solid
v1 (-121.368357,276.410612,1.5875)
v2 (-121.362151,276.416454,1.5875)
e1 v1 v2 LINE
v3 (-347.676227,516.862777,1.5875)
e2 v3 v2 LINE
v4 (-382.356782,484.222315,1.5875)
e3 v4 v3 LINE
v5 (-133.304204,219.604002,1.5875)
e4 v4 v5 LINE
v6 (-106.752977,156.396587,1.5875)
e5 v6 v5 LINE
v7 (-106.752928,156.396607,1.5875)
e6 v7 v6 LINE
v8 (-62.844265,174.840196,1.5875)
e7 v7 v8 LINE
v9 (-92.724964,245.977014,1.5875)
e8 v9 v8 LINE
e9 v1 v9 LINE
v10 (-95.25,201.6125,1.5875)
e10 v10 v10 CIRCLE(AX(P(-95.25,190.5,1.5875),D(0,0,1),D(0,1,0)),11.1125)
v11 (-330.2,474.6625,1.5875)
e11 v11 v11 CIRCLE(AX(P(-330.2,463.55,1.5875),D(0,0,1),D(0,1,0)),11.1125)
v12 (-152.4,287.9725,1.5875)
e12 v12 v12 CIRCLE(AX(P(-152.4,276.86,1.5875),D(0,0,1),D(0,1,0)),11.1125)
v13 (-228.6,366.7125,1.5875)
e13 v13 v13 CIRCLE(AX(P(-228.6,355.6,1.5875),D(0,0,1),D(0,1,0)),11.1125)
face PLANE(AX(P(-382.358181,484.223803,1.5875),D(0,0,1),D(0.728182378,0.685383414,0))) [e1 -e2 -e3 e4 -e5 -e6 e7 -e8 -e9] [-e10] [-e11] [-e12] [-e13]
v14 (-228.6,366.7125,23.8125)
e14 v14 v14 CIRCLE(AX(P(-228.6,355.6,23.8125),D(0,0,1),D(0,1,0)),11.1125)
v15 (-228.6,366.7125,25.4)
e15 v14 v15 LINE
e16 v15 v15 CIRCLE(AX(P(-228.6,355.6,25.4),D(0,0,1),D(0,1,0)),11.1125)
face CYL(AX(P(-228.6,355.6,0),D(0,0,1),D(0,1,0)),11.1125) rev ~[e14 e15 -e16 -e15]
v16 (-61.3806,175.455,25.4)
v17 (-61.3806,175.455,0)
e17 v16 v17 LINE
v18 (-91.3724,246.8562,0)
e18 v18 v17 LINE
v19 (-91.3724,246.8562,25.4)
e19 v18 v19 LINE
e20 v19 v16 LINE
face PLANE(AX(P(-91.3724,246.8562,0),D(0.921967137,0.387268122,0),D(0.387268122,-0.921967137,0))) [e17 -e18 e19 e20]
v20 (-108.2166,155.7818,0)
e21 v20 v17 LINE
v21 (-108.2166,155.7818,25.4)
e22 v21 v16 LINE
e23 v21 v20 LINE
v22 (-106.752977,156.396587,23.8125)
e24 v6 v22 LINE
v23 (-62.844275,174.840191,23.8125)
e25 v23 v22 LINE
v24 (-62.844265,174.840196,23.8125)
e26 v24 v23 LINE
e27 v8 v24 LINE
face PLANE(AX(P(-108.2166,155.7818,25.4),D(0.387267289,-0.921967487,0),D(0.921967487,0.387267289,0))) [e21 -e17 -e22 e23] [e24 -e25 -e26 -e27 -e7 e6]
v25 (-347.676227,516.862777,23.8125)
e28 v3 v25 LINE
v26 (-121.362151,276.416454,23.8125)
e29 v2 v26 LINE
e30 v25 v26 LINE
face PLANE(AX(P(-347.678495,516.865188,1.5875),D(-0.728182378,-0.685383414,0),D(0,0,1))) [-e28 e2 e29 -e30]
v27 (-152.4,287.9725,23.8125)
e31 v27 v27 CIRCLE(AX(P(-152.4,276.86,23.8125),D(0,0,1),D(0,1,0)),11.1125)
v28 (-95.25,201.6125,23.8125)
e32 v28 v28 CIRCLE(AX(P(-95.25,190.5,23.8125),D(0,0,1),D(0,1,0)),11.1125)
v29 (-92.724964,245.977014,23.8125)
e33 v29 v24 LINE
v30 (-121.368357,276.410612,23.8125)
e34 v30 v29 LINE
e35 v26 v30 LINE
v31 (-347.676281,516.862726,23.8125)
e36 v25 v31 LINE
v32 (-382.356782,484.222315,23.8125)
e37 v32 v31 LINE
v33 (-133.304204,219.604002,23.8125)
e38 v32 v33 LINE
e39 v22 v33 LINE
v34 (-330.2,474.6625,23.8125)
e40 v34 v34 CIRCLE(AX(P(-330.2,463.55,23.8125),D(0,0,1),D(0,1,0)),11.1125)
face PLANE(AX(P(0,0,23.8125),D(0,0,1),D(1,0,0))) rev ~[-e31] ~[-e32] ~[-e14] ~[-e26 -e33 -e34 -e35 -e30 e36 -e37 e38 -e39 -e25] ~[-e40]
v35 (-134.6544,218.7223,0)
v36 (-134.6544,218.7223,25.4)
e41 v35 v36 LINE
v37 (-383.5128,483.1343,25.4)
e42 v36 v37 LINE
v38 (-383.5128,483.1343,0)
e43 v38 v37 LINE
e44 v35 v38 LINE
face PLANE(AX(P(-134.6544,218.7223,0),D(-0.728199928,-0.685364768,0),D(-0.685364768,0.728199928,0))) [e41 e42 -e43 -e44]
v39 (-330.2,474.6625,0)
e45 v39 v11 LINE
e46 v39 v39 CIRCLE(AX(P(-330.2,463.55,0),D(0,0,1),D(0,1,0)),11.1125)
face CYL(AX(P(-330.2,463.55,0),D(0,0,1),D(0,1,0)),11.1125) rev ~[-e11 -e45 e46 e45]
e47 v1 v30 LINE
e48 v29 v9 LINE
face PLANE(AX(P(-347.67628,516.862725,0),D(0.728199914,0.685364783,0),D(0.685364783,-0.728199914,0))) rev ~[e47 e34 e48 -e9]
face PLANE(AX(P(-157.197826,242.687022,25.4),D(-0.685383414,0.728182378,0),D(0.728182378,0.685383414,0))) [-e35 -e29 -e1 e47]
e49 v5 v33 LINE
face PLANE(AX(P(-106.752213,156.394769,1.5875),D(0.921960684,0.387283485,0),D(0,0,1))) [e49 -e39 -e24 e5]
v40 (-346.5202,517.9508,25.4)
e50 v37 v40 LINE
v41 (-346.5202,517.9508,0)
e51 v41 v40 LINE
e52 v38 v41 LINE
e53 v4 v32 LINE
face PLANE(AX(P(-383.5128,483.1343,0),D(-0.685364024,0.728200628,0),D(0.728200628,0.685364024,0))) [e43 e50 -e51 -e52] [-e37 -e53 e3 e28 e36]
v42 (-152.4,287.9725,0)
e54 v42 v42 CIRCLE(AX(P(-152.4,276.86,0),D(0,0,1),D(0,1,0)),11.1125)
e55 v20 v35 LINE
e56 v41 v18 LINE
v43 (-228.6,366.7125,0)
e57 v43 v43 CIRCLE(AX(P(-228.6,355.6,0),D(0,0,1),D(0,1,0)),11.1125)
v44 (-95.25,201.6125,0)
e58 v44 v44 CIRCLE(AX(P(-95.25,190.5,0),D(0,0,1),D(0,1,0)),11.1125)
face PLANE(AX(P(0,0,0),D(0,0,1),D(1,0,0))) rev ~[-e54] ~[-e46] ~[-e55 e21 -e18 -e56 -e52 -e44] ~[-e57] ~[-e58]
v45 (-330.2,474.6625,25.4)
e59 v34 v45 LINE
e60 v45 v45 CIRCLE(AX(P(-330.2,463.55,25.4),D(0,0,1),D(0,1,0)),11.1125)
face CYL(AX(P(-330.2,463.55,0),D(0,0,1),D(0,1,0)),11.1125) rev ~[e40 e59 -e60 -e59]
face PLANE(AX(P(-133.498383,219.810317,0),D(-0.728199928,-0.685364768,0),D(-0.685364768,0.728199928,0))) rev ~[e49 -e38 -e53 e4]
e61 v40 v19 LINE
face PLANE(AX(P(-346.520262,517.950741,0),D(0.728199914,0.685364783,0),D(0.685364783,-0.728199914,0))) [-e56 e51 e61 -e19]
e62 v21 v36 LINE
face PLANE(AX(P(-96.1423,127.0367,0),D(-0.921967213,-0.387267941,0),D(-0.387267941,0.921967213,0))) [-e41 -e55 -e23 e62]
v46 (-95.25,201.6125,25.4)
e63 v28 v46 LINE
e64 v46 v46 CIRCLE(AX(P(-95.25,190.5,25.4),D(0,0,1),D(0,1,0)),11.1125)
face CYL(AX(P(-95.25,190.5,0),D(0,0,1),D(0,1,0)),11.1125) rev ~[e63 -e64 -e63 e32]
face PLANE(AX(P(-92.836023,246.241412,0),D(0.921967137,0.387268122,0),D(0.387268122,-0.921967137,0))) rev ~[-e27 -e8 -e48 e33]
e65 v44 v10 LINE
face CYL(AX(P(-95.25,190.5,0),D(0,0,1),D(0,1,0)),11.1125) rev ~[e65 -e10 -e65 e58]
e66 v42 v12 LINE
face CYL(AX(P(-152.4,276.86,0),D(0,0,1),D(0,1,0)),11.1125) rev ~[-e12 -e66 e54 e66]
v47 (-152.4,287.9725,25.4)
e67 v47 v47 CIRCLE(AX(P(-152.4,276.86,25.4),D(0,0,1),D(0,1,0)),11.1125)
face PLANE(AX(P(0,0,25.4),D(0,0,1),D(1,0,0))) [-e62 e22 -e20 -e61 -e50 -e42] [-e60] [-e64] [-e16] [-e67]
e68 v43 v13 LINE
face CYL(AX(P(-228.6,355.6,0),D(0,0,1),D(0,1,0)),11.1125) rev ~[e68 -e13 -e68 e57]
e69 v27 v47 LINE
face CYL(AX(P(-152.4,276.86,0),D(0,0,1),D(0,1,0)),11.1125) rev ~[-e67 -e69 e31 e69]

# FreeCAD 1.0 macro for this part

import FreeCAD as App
import Part
import Sketcher
Q = App.Units.Quantity


def faces_at(feature, points):
    """Names of the faces that lie closest to the given points."""
    faces = feature.Shape.Faces
    near = lambda p: min(range(len(faces)), key=lambda i: faces[i].distToShape(Part.Vertex(*p))[0])
    return sorted({f"Face{near(p) + 1}" for p in points})


def add_polygon(sketch, points):
    """Adds a closed chain of lines whose ends are joined by coincident constraints."""
    first, n = sketch.GeometryCount, len(points)
    for a, b in zip(points, points[1:] + points[:1]):
        sketch.addGeometry(Part.LineSegment(App.Vector(*a, 0), App.Vector(*b, 0)), False)
    for i in range(n):
        sketch.addConstraint(Sketcher.Constraint("Coincident", first + i, 2, first + (i + 1) % n, 1))

doc = App.newDocument("Part")
body = doc.addObject("PartDesign::Body", "Body")

sketch1 = body.newObject("Sketcher::SketchObject", "Sketch")
sketch1.AttachmentSupport = (doc.getObject("XY_Plane"), [""])
sketch1.MapMode = "FlatFace"
add_polygon(sketch1, [(-91.3724, 246.8562), (-346.5202, 517.9508), (-383.5128, 483.1343), (-134.6544, 218.7223), (-96.1423, 127.0367), (-49.3064, 146.7099)])
sketch1.addConstraint([
    Sketcher.Constraint("Perpendicular", 0, 1),
    Sketcher.Constraint("Perpendicular", 1, 2),
    Sketcher.Constraint("Perpendicular", 3, 4),
    Sketcher.Constraint("Perpendicular", 4, 5),
    Sketcher.Constraint("Equal", 1, 4),
    Sketcher.Constraint("Distance", 1, Q("2 in")),
    Sketcher.Constraint("DistanceY", -1, 1, 5, 2, Q("9.718748 in")),
    Sketcher.Constraint("Distance", 0, Q("14.6567 in")),
    Sketcher.Constraint("DistanceX", 4, 2, -1, 1, Q("1.9412 in")),
    Sketcher.Constraint("DistanceX", 1, 2, 0, 2, Q("1.4564 in")),
    Sketcher.Constraint("DistanceX", 1, 2, 3, 2, Q("11.3138 in")),
    Sketcher.Constraint("DistanceY", 3, 2, 1, 2, Q("14.0196 in")),
])
pad1 = body.newObject("PartDesign::Pad", "Pad")
pad1.Profile = sketch1
pad1.Length = Q("1 in")

sketch2 = body.newObject("Sketcher::SketchObject", "Sketch001")
sketch2.AttachmentSupport = (doc.getObject("XY_Plane"), [""])
sketch2.MapMode = "FlatFace"
sketch2.addGeometry([
    Part.Circle(App.Vector(-95.25, 190.5, 0), App.Vector(0, 0, 1), 11.1125),
    Part.Circle(App.Vector(-152.4, 276.86, 0), App.Vector(0, 0, 1), 11.1125),
    Part.Circle(App.Vector(-228.6, 355.6, 0), App.Vector(0, 0, 1), 11.1125),
    Part.Circle(App.Vector(-330.2, 463.55, 0), App.Vector(0, 0, 1), 11.1125),
], False)
sketch2.addConstraint([
    Sketcher.Constraint("Equal", 0, 1),
    Sketcher.Constraint("Equal", 1, 2),
    Sketcher.Constraint("Equal", 2, 3),
    Sketcher.Constraint("Diameter", 0, Q("0.875 in")),
    Sketcher.Constraint("DistanceX", 1, 3, -1, 1, Q("6 in")),
    Sketcher.Constraint("DistanceX", 2, 3, -1, 1, Q("9 in")),
    Sketcher.Constraint("DistanceY", -1, 1, 2, 3, Q("14 in")),
    Sketcher.Constraint("DistanceX", 3, 3, -1, 1, Q("13 in")),
    Sketcher.Constraint("DistanceY", -1, 1, 0, 3, Q("7.5 in")),
    Sketcher.Constraint("DistanceY", -1, 1, 1, 3, Q("10.9 in")),
    Sketcher.Constraint("DistanceX", 0, 3, -1, 1, Q("3.75 in")),
    Sketcher.Constraint("DistanceY", -1, 1, 3, 3, Q("18.25 in")),
])
doc.recompute()
hole = body.newObject("PartDesign::Hole", "Hole")
hole.Profile = sketch2
hole.ThreadType = "None"
hole.Diameter = Q("0.875 in")
hole.DepthType = "ThroughAll"
hole.Reversed = True

sketch3 = body.newObject("Sketcher::SketchObject", "Sketch002")
sketch3.AttachmentSupport = (doc.getObject("XY_Plane"), [""])
sketch3.MapMode = "FlatFace"
sketch3.AttachmentOffset = App.Placement(App.Vector(0, 0, 1 * 25.4), App.Rotation())
add_polygon(sketch3, [(-61.3806, 175.455), (-108.216551, 155.781821), (-96.1423, 127.0367), (-49.3064, 146.7099)])
sketch3.addConstraint([
    Sketcher.Constraint("Perpendicular", 0, 1),
    Sketcher.Constraint("Perpendicular", 1, 2),
    Sketcher.Constraint("Perpendicular", 2, 3),
    Sketcher.Constraint("Distance", 0, Q("2 in")),
    Sketcher.Constraint("DistanceX", 0, 2, -1, 1, Q("4.2605 in")),
    Sketcher.Constraint("DistanceX", 2, 2, -1, 1, Q("1.9412 in")),
    Sketcher.Constraint("DistanceY", 1, 2, 0, 2, Q("1.1317 in")),
    Sketcher.Constraint("DistanceY", -1, 1, 0, 2, Q("155.7818 mm")),
])
pocket1 = body.newObject("PartDesign::Pocket", "Pocket")
pocket1.Profile = sketch3
pocket1.Length = Q("1 in")
doc.recompute()

thickness = body.newObject("PartDesign::Thickness", "Thickness")
thickness.Base = (pocket1, faces_at(pocket1, [(-92.605, 162.339, 8.467), (-358.851, 506.345, 8.467)]))
thickness.Value = Q("0.0625 in")
thickness.Reversed = True
thickness.Join = "Intersection"

sketch4 = body.newObject("Sketcher::SketchObject", "Sketch003")
sketch4.Placement = App.Placement(App.Vector(-383.5128, 483.1343, 25.4), App.Rotation(App.Vector(0.728182378, 0.685383414, 0), App.Vector(0, 0, -1), App.Vector(-0.685383414, 0.728182378, 0), "ZXY"))
add_polygon(sketch4, [(1.5875, 1.5875), (49.2125, 1.5875), (49.2125, 23.8125), (1.5875, 23.8125)])
sketch4.addConstraint([
    Sketcher.Constraint("Horizontal", 0),
    Sketcher.Constraint("Vertical", 1),
    Sketcher.Constraint("Horizontal", 2),
    Sketcher.Constraint("Vertical", 3),
    Sketcher.Constraint("DistanceX", 0, 1, 0, 2, Q("1.875 in")),
    Sketcher.Constraint("DistanceY", 1, 1, 1, 2, Q("0.875 in")),
    Sketcher.Constraint("DistanceX", -1, 1, 0, 2, Q("1.9375 in")),
    Sketcher.Constraint("DistanceY", -1, 1, 0, 2, Q("0.0625 in")),
])
pocket2 = body.newObject("PartDesign::Pocket", "Pocket001")
pocket2.Profile = sketch4
pocket2.Length = Q("13 in")

sketch5 = body.newObject("Sketcher::SketchObject", "Sketch004")
sketch5.Placement = App.Placement(App.Vector(-108.2166, 155.7818, 0), App.Rotation(App.Vector(0.921960684, 0.387283485, 0), App.Vector(0, 0, 1.000000001), App.Vector(0.387283485, -0.921960684, 0), "ZXY"))
add_polygon(sketch5, [(1.5875, 1.5875), (49.2125, 1.5875), (49.2125, 23.8125), (1.5875, 23.8125)])
sketch5.addConstraint([
    Sketcher.Constraint("Horizontal", 0),
    Sketcher.Constraint("Vertical", 1),
    Sketcher.Constraint("Horizontal", 2),
    Sketcher.Constraint("Vertical", 3),
    Sketcher.Constraint("DistanceX", 0, 1, 0, 2, Q("1.875 in")),
    Sketcher.Constraint("DistanceY", 1, 1, 1, 2, Q("0.875 in")),
    Sketcher.Constraint("DistanceX", -1, 1, 0, 2, Q("1.9375 in")),
    Sketcher.Constraint("DistanceY", -1, 1, 0, 2, Q("0.0625 in")),
])
pocket3 = body.newObject("PartDesign::Pocket", "Pocket002")
pocket3.Profile = sketch5
pocket3.Length = Q("3 in")

doc.recompute()
